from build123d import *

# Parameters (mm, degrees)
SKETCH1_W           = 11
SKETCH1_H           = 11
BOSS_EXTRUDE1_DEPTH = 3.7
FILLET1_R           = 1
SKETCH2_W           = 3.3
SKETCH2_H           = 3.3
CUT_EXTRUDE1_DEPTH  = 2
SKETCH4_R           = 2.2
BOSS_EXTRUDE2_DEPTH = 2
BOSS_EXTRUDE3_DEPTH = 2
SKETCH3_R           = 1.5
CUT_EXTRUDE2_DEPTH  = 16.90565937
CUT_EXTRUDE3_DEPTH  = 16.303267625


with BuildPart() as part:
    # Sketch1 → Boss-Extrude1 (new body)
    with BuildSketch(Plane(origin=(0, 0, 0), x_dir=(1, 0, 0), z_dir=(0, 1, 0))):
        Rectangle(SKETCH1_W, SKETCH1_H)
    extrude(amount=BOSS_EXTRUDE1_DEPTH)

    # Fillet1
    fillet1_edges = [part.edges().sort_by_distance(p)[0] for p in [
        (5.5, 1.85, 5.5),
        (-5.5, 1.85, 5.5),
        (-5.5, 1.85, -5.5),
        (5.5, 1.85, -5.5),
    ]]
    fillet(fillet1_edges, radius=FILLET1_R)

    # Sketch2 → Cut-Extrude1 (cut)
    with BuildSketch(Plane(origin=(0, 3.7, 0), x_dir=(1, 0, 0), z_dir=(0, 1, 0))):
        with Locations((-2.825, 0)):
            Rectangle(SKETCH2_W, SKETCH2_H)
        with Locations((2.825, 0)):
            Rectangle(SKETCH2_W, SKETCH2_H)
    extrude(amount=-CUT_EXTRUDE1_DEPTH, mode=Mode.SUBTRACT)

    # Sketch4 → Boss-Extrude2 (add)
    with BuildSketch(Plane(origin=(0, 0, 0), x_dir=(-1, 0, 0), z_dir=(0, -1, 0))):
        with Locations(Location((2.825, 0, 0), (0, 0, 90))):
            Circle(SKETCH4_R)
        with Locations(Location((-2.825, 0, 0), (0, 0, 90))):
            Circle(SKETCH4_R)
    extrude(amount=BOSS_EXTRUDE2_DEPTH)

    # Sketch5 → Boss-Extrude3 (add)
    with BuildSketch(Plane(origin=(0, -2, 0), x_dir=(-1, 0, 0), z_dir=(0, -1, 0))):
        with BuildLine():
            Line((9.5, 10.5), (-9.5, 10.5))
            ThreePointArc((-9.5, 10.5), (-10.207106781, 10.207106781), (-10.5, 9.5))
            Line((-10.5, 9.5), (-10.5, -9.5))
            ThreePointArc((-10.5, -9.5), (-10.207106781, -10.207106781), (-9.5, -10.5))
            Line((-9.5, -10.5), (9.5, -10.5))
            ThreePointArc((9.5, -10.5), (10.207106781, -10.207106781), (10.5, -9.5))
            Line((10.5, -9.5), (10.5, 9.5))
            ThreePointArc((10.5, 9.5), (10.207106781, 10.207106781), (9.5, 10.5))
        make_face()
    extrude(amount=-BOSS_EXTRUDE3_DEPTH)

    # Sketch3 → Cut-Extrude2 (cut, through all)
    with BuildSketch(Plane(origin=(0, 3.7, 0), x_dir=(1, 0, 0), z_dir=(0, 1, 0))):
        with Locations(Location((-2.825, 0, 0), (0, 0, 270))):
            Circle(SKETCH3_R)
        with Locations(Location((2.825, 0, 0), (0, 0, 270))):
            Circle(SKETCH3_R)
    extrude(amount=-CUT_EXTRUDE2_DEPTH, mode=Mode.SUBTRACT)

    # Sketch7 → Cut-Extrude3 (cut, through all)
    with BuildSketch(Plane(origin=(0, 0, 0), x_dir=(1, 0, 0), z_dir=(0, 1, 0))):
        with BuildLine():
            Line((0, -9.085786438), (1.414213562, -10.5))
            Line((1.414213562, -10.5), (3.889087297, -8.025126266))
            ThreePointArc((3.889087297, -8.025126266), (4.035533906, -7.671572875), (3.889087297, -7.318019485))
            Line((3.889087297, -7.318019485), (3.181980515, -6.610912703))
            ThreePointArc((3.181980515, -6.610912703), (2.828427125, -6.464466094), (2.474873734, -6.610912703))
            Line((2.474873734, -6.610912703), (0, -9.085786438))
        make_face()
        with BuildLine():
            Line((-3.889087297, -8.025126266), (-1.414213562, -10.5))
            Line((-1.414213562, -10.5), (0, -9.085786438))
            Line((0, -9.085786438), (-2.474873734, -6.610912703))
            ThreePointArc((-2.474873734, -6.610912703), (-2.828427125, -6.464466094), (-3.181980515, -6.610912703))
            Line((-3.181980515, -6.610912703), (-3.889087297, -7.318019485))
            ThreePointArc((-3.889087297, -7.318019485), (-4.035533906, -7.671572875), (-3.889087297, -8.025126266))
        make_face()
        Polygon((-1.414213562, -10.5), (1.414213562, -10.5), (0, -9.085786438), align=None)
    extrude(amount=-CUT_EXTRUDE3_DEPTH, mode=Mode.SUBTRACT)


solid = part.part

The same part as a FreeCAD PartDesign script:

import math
import FreeCAD as App
import Part
import Sketcher

V = App.Vector


def edges_at(feature, points):
    """Names of the edges that pass closest to the given points."""
    edges = feature.Shape.Edges
    near = lambda p: min(range(len(edges)), key=lambda i: edges[i].distToShape(Part.Vertex(*p))[0])
    return sorted({f"Edge{near(p) + 1}" for p in points})

doc = App.newDocument("Part")
params = doc.addObject("Spreadsheet::Sheet", "Params")
for row, (alias, value) in enumerate([
    ("sketch1_width", "11 mm"),
    ("pad1_length", "3.7 mm"),
    ("fillet_radius", "1 mm"),
    ("sketch2_width", "3.3 mm"),
    ("pocket1_length", "2 mm"),
    ("sketch3_diameter", "4.4 mm"),
    ("pad2_length", "2 mm"),
    ("sketch4_radius", "1 mm"),
    ("sketch4_width", "19 mm"),
    ("pad3_length", "2 mm"),
    ("sketch5_diameter", "3 mm"),
    ("sketch6_radius", "0.5 mm"),
    ("sketch6_length", "1 mm"),
    ("sketch6_length2", "3.5 mm"),
], start=1):
    params.set(f"A{row}", alias)
    params.set(f"B{row}", "=" + value)
    params.setAlias(f"B{row}", alias)

body = doc.addObject("PartDesign::Body", "Body")

# Sketch on XZ plane
sketch1 = body.newObject("Sketcher::SketchObject", "Sketch")
sketch1.AttachmentSupport = (doc.getObject("XZ_Plane"), [""])
sketch1.MapMode = "FlatFace"
sketch1.addGeometry([
    Part.LineSegment(V(-6, -6, 0), V(-6, 6, 0)),
    Part.LineSegment(V(-6, 6, 0), V(6, 6, 0)),
    Part.LineSegment(V(6, 6, 0), V(6, -6, 0)),
    Part.LineSegment(V(6, -6, 0), V(-6, -6, 0)),
], False)
sketch1.addConstraint([
    Sketcher.Constraint("Coincident", 0, 2, 1, 1),
    Sketcher.Constraint("Coincident", 1, 2, 2, 1),
    Sketcher.Constraint("Coincident", 2, 2, 3, 1),
    Sketcher.Constraint("Coincident", 3, 2, 0, 1),
    Sketcher.Constraint("Vertical", 0),
    Sketcher.Constraint("Horizontal", 1),
    Sketcher.Constraint("Vertical", 2),
    Sketcher.Constraint("Horizontal", 3),
    Sketcher.Constraint("Symmetric", 0, 2, 2, 2, -1, 1),
    Sketcher.Constraint("Equal", 3, 0),
    Sketcher.Constraint("DistanceX", 1, 1, 1, 2, 11.0),
])
sketch1.setExpression("Constraints[10]", "Params.sketch1_width")
pad1 = body.newObject("PartDesign::Pad", "Pad")
pad1.Profile = sketch1
pad1.setExpression("Length", "Params.pad1_length")
pad1.Reversed = True
doc.recompute()

fillet = body.newObject("PartDesign::Fillet", "Fillet")
fillet.Base = (pad1, edges_at(pad1, [
    (5.5, 1.85, 5.5),
    (-5.5, 1.85, 5.5),
    (-5.5, 1.85, -5.5),
    (5.5, 1.85, -5.5),
]))
fillet.setExpression("Radius", "Params.fillet_radius")

# Sketch on XZ plane
sketch2 = body.newObject("Sketcher::SketchObject", "Sketch001")
sketch2.AttachmentSupport = (doc.getObject("XZ_Plane"), [""])
sketch2.MapMode = "FlatFace"
sketch2.AttachmentOffset = App.Placement(V(0, 0, -3.7), App.Rotation())
sketch2.addGeometry([
    Part.LineSegment(V(-4.5, -1.6, 0), V(-4.5, 1.6, 0)),  # 0
    Part.LineSegment(V(-4.5, 1.6, 0), V(-1.2, 1.6, 0)),  # 1
    Part.LineSegment(V(-1.2, 1.6, 0), V(-1.2, -1.6, 0)),  # 2
    Part.LineSegment(V(-1.2, -1.6, 0), V(-4.5, -1.6, 0)),  # 3
    Part.LineSegment(V(1.2, -1.6, 0), V(1.2, 1.6, 0)),  # 4
    Part.LineSegment(V(1.2, 1.6, 0), V(4.5, 1.6, 0)),  # 5
    Part.LineSegment(V(4.5, 1.6, 0), V(4.5, -1.6, 0)),  # 6
    Part.LineSegment(V(4.5, -1.6, 0), V(1.2, -1.6, 0)),  # 7
], False)
sketch2.addConstraint([
    Sketcher.Constraint("Coincident", 0, 2, 1, 1),
    Sketcher.Constraint("Coincident", 1, 2, 2, 1),
    Sketcher.Constraint("Coincident", 2, 2, 3, 1),
    Sketcher.Constraint("Coincident", 3, 2, 0, 1),
    Sketcher.Constraint("Coincident", 4, 2, 5, 1),
    Sketcher.Constraint("Coincident", 5, 2, 6, 1),
    Sketcher.Constraint("Coincident", 6, 2, 7, 1),
    Sketcher.Constraint("Coincident", 7, 2, 4, 1),
    Sketcher.Constraint("Vertical", 0),
    Sketcher.Constraint("Horizontal", 1),
    Sketcher.Constraint("Vertical", 2),
    Sketcher.Constraint("Horizontal", 3),
    Sketcher.Constraint("Vertical", 4),
    Sketcher.Constraint("Horizontal", 5),
    Sketcher.Constraint("Vertical", 6),
    Sketcher.Constraint("Horizontal", 7),
    Sketcher.Constraint("Symmetric", 2, 2, 4, 2, -1, 1),
    Sketcher.Constraint("Symmetric", 0, 2, 6, 2, -1, 1),
    Sketcher.Constraint("Horizontal", 1, 2, 4, 2),
    Sketcher.Constraint("Equal", 7, 0),
    Sketcher.Constraint("DistanceX", 1, 1, 1, 2, 3.3),
    Sketcher.Constraint("DistanceX", 1, 2, 4, 2, 2.35),
])
sketch2.setExpression("Constraints[20]", "Params.sketch2_width")
pocket1 = body.newObject("PartDesign::Pocket", "Pocket")
pocket1.Profile = sketch2
pocket1.setExpression("Length", "Params.pocket1_length")
pocket1.Reversed = True

# Sketch on XZ plane
sketch3 = body.newObject("Sketcher::SketchObject", "Sketch002")
sketch3.AttachmentSupport = (doc.getObject("XZ_Plane"), [""])
sketch3.MapMode = "FlatFace"
sketch3.addGeometry([
    Part.Circle(V(-2.8, 0, 0), V(0, 0, 1), 2.2),
    Part.Circle(V(2.8, 0, 0), V(0, 0, 1), 2.2),
], False)
sketch3.addConstraint([
    Sketcher.Constraint("Equal", 0, 1),
    Sketcher.Constraint("Symmetric", 0, 3, 1, 3, -1, 1),
    Sketcher.Constraint("PointOnObject", 0, 3, -1),
    Sketcher.Constraint("Diameter", 0, 4.4),
    Sketcher.Constraint("DistanceX", 0, 3, 1, 3, 5.65),
])
sketch3.setExpression("Constraints[3]", "Params.sketch3_diameter")
pad2 = body.newObject("PartDesign::Pad", "Pad001")
pad2.Profile = sketch3
pad2.setExpression("Length", "Params.pad2_length")

# Sketch on XZ plane
sketch4 = body.newObject("Sketcher::SketchObject", "Sketch003")
sketch4.AttachmentSupport = (doc.getObject("XZ_Plane"), [""])
sketch4.MapMode = "FlatFace"
sketch4.AttachmentOffset = App.Placement(V(0, 0, 2), App.Rotation())
sketch4.addGeometry([
    Part.LineSegment(V(-9.5, -10.5, 0), V(9.5, -10.5, 0)),  # 0
    Part.ArcOfCircle(Part.Circle(V(9.5, -9.5, 0), V(0, 0, 1), 1), math.radians(-90), math.radians(0)),  # 1
    Part.LineSegment(V(10.5, -9.5, 0), V(10.5, 9.5, 0)),  # 2
    Part.ArcOfCircle(Part.Circle(V(9.5, 9.5, 0), V(0, 0, 1), 1), math.radians(0), math.radians(90)),  # 3
    Part.LineSegment(V(9.5, 10.5, 0), V(-9.5, 10.5, 0)),  # 4
    Part.ArcOfCircle(Part.Circle(V(-9.5, 9.5, 0), V(0, 0, 1), 1), math.radians(90), math.radians(180)),  # 5
    Part.LineSegment(V(-10.5, 9.5, 0), V(-10.5, -9.5, 0)),  # 6
    Part.ArcOfCircle(Part.Circle(V(-9.5, -9.5, 0), V(0, 0, 1), 1), math.radians(-180), math.radians(-90)),  # 7
], False)
sketch4.addConstraint([
    Sketcher.Constraint("Tangent", 0, 2, 1, 1),
    Sketcher.Constraint("Tangent", 1, 2, 2, 1),
    Sketcher.Constraint("Tangent", 2, 2, 3, 1),
    Sketcher.Constraint("Tangent", 3, 2, 4, 1),
    Sketcher.Constraint("Tangent", 4, 2, 5, 1),
    Sketcher.Constraint("Tangent", 5, 2, 6, 1),
    Sketcher.Constraint("Tangent", 6, 2, 7, 1),
    Sketcher.Constraint("Tangent", 7, 2, 0, 1),
    Sketcher.Constraint("Horizontal", 0),
    Sketcher.Constraint("Vertical", 2),
    Sketcher.Constraint("Horizontal", 4),
    Sketcher.Constraint("Vertical", 6),
    Sketcher.Constraint("Equal", 1, 3),
    Sketcher.Constraint("Equal", 3, 5),
    Sketcher.Constraint("Equal", 5, 7),
    Sketcher.Constraint("Symmetric", 1, 3, 5, 3, -1, 1),
    Sketcher.Constraint("Equal", 4, 2),
    Sketcher.Constraint("Radius", 1, 1.0),
    Sketcher.Constraint("DistanceX", 0, 1, 0, 2, 19.0),
])
sketch4.setExpression("Constraints[17]", "Params.sketch4_radius")
sketch4.setExpression("Constraints[18]", "Params.sketch4_width")
pad3 = body.newObject("PartDesign::Pad", "Pad002")
pad3.Profile = sketch4
pad3.setExpression("Length", "Params.pad3_length")
pad3.Reversed = True

# Sketch on XZ plane
sketch5 = body.newObject("Sketcher::SketchObject", "Sketch004")
sketch5.AttachmentSupport = (doc.getObject("XZ_Plane"), [""])
sketch5.MapMode = "FlatFace"
sketch5.AttachmentOffset = App.Placement(V(0, 0, -3.7), App.Rotation())
sketch5.addGeometry([
    Part.Circle(V(-2.8, 0, 0), V(0, 0, 1), 1.5),
    Part.Circle(V(2.8, 0, 0), V(0, 0, 1), 1.5),
], False)
sketch5.addConstraint([
    Sketcher.Constraint("Equal", 0, 1),
    Sketcher.Constraint("Symmetric", 0, 3, 1, 3, -1, 1),
    Sketcher.Constraint("PointOnObject", 0, 3, -1),
    Sketcher.Constraint("Diameter", 0, 3.0),
    Sketcher.Constraint("DistanceX", 0, 3, 1, 3, 5.65),
])
sketch5.setExpression("Constraints[3]", "Params.sketch5_diameter")
pocket2 = body.newObject("PartDesign::Pocket", "Pocket001")
pocket2.Profile = sketch5
pocket2.Type = "ThroughAll"
pocket2.Reversed = True

# Sketch on XZ plane
sketch6 = body.newObject("Sketcher::SketchObject", "Sketch005")
sketch6.AttachmentSupport = (doc.getObject("XZ_Plane"), [""])
sketch6.MapMode = "FlatFace"
sketch6.addGeometry([
    Part.LineSegment(V(1.4, 10.5, 0), V(3.9, 8, 0)),  # 0
    Part.ArcOfCircle(Part.Circle(V(3.5, 7.7, 0), V(0, 0, 1), 0.5), math.radians(-45), math.radians(45)),  # 1
    Part.LineSegment(V(3.9, 7.3, 0), V(3.2, 6.6, 0)),  # 2
    Part.ArcOfCircle(Part.Circle(V(2.8, 7, 0), V(0, 0, 1), 0.5), math.radians(-135), math.radians(-45)),  # 3
    Part.LineSegment(V(2.5, 6.6, 0), V(0, 9.1, 0)),  # 4
    Part.LineSegment(V(0, 9.1, 0), V(-2.5, 6.6, 0)),  # 5
    Part.ArcOfCircle(Part.Circle(V(-2.8, 7, 0), V(0, 0, 1), 0.5), math.radians(-135), math.radians(-45)),  # 6
    Part.LineSegment(V(-3.2, 6.6, 0), V(-3.9, 7.3, 0)),  # 7
    Part.ArcOfCircle(Part.Circle(V(-3.5, 7.7, 0), V(0, 0, 1), 0.5), math.radians(135), math.radians(225)),  # 8
    Part.LineSegment(V(-3.9, 8, 0), V(-1.4, 10.5, 0)),  # 9
    Part.LineSegment(V(-1.4, 10.5, 0), V(1.4, 10.5, 0)),  # 10
], False)
sketch6.addConstraint([
    Sketcher.Constraint("Tangent", 0, 2, 1, 2),
    Sketcher.Constraint("Tangent", 1, 1, 2, 1),
    Sketcher.Constraint("Tangent", 2, 2, 3, 2),
    Sketcher.Constraint("Tangent", 3, 1, 4, 1),
    Sketcher.Constraint("Coincident", 4, 2, 5, 1),
    Sketcher.Constraint("Tangent", 5, 2, 6, 2),
    Sketcher.Constraint("Tangent", 6, 1, 7, 1),
    Sketcher.Constraint("Tangent", 7, 2, 8, 2),
    Sketcher.Constraint("Tangent", 8, 1, 9, 1),
    Sketcher.Constraint("Coincident", 9, 2, 10, 1),
    Sketcher.Constraint("Coincident", 10, 2, 0, 1),
    Sketcher.Constraint("Horizontal", 10),
    Sketcher.Constraint("Equal", 1, 3),
    Sketcher.Constraint("Equal", 3, 6),
    Sketcher.Constraint("Equal", 6, 8),
    Sketcher.Constraint("Symmetric", 3, 3, 6, 3, -2),
    Sketcher.Constraint("Symmetric", 1, 3, 8, 3, -2),
    Sketcher.Constraint("PointOnObject", 4, 2, -2),
    Sketcher.Constraint("Perpendicular", 0, 2),
    Sketcher.Constraint("Perpendicular", 2, 4),
    Sketcher.Constraint("Perpendicular", 4, 5),
    Sketcher.Constraint("Perpendicular", 7, 9),
    Sketcher.Constraint("Equal", 0, 4),
    Sketcher.Constraint("Radius", 1, 0.5),
    Sketcher.Constraint("Distance", 2, 1.0),
    Sketcher.Constraint("Distance", 0, 3.5),
    Sketcher.Constraint("DistanceY", -1, 1, 9, 2, 10.5),
])
sketch6.setExpression("Constraints[23]", "Params.sketch6_radius")
sketch6.setExpression("Constraints[24]", "Params.sketch6_length")
sketch6.setExpression("Constraints[25]", "Params.sketch6_length2")
pocket3 = body.newObject("PartDesign::Pocket", "Pocket002")
pocket3.Profile = sketch6
pocket3.Type = "ThroughAll"
pocket3.Reversed = True

doc.recompute()
